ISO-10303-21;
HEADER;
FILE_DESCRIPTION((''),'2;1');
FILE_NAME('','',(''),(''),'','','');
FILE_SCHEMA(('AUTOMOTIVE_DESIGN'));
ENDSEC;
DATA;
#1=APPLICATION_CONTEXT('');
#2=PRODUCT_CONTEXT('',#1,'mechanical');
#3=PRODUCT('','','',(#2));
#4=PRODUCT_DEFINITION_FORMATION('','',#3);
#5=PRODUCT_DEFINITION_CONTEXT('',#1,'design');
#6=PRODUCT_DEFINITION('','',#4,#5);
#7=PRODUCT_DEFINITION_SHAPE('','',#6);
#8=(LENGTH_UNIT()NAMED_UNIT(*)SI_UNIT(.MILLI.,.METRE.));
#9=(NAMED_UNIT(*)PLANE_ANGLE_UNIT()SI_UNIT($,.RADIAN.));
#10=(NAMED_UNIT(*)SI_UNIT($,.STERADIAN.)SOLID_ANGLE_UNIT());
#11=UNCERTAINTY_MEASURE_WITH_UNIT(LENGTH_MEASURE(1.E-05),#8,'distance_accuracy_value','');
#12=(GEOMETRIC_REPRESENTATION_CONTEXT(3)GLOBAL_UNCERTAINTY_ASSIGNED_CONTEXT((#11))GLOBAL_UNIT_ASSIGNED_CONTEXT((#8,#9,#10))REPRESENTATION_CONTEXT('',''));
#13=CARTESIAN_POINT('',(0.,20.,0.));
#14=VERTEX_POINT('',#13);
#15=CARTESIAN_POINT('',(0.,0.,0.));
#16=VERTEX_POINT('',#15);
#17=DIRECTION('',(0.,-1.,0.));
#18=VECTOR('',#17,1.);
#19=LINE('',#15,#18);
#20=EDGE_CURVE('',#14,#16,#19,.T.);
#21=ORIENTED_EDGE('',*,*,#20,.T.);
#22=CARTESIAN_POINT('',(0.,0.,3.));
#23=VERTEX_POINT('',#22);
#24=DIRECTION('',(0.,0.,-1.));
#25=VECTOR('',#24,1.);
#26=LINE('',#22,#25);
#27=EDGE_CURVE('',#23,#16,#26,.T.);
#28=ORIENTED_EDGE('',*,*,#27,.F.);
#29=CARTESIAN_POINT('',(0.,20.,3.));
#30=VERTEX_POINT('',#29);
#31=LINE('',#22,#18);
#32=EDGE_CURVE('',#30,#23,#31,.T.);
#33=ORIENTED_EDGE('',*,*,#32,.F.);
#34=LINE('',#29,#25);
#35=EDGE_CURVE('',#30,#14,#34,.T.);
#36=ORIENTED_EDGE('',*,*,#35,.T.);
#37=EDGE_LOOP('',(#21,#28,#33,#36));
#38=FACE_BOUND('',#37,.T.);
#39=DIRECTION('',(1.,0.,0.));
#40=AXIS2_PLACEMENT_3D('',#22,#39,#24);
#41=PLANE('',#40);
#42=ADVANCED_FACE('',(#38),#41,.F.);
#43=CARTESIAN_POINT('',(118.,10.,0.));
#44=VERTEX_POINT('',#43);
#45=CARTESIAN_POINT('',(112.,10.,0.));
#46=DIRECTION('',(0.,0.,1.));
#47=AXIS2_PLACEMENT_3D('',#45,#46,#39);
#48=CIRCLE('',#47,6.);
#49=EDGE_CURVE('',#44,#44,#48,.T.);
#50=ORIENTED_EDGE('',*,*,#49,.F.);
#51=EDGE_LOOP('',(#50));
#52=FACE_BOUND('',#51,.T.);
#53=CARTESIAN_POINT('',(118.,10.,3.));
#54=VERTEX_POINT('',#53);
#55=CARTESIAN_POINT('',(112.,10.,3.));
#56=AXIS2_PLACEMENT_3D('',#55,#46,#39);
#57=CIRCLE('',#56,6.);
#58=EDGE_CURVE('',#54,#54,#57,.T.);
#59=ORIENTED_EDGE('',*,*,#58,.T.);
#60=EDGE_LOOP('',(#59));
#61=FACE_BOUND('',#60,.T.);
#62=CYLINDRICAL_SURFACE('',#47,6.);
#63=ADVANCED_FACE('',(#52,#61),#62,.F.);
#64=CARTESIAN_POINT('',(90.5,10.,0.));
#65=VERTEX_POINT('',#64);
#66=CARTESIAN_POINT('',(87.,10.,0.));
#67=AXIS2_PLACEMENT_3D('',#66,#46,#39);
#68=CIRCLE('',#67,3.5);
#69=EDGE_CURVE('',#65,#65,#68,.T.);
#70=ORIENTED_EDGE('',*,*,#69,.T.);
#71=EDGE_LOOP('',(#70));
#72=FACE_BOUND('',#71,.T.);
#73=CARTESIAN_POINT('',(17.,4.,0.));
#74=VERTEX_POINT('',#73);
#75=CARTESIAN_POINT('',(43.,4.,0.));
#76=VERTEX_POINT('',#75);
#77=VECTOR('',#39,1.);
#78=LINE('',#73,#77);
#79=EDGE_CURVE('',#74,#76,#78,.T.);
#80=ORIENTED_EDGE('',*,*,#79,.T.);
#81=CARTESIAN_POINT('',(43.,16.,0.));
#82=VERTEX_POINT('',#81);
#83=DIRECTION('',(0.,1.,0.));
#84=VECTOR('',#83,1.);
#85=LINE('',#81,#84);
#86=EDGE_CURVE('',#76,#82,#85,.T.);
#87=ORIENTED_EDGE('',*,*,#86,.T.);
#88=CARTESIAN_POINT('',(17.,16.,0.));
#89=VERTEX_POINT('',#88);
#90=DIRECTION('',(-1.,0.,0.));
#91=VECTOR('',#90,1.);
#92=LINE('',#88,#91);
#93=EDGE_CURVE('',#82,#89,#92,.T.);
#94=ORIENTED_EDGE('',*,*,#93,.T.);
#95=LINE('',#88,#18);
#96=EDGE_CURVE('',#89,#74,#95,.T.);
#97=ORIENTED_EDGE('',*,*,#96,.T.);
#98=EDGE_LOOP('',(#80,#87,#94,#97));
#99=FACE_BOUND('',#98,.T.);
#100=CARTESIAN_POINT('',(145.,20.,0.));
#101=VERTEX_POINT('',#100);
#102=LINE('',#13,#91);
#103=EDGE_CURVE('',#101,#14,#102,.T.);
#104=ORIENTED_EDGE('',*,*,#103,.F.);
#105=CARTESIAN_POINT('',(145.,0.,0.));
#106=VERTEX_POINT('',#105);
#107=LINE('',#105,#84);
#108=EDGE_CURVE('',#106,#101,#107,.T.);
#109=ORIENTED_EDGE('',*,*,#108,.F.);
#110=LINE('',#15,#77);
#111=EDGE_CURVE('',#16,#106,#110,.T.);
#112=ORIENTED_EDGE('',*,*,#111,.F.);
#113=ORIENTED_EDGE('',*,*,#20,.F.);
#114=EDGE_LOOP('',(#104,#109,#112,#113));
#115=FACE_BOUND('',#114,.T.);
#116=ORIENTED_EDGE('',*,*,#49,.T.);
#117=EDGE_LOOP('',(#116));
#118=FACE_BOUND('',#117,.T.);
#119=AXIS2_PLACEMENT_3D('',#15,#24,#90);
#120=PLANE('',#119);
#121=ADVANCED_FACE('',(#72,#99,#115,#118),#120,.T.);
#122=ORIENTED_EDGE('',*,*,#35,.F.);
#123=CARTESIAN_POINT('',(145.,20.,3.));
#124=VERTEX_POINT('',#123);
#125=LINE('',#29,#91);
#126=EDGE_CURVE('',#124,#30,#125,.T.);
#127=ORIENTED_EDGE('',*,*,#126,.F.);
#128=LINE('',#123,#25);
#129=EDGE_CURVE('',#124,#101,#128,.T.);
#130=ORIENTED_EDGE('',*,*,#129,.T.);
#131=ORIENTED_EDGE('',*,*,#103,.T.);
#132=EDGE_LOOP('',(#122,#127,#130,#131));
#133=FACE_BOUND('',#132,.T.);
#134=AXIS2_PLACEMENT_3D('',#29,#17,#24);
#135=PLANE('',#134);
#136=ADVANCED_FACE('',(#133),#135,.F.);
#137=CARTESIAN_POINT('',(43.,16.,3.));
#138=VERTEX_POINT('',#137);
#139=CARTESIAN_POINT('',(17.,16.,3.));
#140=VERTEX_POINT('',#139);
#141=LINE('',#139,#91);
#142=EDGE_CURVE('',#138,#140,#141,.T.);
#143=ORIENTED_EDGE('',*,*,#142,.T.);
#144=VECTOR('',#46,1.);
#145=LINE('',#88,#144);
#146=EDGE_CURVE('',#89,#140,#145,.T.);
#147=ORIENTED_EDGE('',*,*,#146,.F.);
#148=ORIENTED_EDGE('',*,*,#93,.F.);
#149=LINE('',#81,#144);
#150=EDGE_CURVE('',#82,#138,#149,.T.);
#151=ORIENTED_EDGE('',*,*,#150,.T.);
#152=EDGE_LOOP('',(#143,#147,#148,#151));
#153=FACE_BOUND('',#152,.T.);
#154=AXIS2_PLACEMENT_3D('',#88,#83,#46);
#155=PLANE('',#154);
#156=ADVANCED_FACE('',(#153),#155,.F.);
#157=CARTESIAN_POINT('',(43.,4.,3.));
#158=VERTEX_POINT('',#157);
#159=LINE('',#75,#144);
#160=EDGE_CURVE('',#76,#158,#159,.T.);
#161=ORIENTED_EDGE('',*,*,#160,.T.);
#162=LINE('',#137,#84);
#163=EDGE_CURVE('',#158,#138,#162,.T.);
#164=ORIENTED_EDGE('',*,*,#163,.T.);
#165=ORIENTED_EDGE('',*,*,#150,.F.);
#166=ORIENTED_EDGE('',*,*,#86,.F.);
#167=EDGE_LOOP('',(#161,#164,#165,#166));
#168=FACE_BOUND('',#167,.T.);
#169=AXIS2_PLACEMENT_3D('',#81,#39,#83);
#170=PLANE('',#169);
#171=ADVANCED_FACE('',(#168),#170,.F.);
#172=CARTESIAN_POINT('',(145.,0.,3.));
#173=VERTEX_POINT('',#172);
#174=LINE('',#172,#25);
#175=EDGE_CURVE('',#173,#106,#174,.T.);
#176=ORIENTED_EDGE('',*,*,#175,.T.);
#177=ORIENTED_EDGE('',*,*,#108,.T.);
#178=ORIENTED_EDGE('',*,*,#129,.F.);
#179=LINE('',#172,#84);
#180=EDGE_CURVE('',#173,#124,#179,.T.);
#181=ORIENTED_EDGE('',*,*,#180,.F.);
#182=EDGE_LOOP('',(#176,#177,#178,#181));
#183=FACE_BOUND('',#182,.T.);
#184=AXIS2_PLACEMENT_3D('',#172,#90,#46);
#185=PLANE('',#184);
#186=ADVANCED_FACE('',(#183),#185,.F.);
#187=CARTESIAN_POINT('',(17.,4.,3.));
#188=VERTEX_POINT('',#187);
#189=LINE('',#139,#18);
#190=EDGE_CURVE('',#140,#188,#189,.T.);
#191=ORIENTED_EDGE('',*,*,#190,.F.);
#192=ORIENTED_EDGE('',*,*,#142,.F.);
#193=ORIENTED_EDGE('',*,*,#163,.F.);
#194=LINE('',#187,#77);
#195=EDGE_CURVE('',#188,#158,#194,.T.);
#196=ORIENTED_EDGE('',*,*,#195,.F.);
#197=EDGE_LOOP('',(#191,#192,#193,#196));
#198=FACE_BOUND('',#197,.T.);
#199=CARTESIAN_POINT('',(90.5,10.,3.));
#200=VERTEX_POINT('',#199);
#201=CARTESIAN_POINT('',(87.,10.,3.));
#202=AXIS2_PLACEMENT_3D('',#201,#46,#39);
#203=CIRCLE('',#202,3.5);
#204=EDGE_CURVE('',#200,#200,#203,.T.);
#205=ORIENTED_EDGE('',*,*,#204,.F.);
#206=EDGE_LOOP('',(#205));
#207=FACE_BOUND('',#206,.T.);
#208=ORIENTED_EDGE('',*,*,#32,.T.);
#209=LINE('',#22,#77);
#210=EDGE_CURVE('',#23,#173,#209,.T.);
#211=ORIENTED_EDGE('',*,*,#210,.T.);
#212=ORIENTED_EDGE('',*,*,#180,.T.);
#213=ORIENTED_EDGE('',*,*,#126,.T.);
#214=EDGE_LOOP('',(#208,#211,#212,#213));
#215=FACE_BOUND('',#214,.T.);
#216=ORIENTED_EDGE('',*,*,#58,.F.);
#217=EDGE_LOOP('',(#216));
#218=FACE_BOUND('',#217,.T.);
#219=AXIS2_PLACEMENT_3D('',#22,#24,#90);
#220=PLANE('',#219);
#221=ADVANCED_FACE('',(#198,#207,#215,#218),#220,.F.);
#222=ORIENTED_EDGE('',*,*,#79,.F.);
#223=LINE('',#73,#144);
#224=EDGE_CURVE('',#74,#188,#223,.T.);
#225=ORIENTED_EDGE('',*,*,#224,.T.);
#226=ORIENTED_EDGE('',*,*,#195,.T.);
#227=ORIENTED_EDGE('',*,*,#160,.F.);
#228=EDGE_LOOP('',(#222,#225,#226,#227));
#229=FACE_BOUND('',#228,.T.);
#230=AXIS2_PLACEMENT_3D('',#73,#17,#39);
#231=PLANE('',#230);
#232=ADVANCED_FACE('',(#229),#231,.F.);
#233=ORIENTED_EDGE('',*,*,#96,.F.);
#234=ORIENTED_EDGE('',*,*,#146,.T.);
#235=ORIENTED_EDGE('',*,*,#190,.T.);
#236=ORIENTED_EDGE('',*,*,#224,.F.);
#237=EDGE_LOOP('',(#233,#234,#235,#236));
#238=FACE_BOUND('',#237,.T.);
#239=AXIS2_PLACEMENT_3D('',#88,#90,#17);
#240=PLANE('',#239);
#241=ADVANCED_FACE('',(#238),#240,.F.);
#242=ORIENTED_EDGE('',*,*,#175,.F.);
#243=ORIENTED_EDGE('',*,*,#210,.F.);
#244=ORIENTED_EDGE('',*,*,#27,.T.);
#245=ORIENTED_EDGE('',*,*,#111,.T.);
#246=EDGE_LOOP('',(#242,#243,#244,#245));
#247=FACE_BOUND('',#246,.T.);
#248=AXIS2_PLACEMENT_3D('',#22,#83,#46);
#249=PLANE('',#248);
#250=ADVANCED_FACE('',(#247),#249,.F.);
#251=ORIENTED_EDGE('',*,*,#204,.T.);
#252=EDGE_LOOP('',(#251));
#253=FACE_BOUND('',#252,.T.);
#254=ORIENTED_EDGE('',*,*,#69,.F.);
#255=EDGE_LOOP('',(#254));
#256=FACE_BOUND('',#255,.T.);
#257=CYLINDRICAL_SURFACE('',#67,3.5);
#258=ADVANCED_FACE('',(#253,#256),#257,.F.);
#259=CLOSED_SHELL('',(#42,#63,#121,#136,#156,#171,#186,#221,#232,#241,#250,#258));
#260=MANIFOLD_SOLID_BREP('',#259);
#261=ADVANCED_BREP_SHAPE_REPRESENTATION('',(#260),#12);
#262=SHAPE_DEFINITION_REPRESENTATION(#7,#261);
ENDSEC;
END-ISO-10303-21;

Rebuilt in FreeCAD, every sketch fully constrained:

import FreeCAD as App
import Part
import Sketcher
Q = App.Units.Quantity

doc = App.newDocument("Part")
body = doc.addObject("PartDesign::Body", "Body")

# Sketch on XY plane
sketch1 = body.newObject("Sketcher::SketchObject", "Sketch")
sketch1.AttachmentSupport = (doc.getObject("XY_Plane"), [""])
sketch1.MapMode = "FlatFace"
sketch1.addGeometry(Part.LineSegment(App.Vector(0, 20, 0), App.Vector(0, 0, 0)), False)
sketch1.addGeometry(Part.LineSegment(App.Vector(0, 0, 0), App.Vector(145, 0, 0)), False)
sketch1.addGeometry(Part.LineSegment(App.Vector(145, 0, 0), App.Vector(145, 20, 0)), False)
sketch1.addGeometry(Part.LineSegment(App.Vector(145, 20, 0), App.Vector(0, 20, 0)), False)
sketch1.addConstraint(Sketcher.Constraint("Coincident", 0, 2, 1, 1))
sketch1.addConstraint(Sketcher.Constraint("Coincident", 1, 2, 2, 1))
sketch1.addConstraint(Sketcher.Constraint("Coincident", 2, 2, 3, 1))
sketch1.addConstraint(Sketcher.Constraint("Coincident", 3, 2, 0, 1))
sketch1.addConstraint(Sketcher.Constraint("Vertical", 0))
sketch1.addConstraint(Sketcher.Constraint("Horizontal", 1))
sketch1.addConstraint(Sketcher.Constraint("Vertical", 2))
sketch1.addConstraint(Sketcher.Constraint("Horizontal", 3))
sketch1.addConstraint(Sketcher.Constraint("Coincident", 0, 2, -1, 1))
sketch1.addConstraint(Sketcher.Constraint("DistanceX", 1, 1, 1, 2, Q("145 mm")))
sketch1.addConstraint(Sketcher.Constraint("DistanceY", 0, 2, 0, 1, Q("20 mm")))
pad1 = body.newObject("PartDesign::Pad", "Pad")
pad1.Profile = sketch1
pad1.Length = 3

# Sketch on XY plane
sketch2 = body.newObject("Sketcher::SketchObject", "Sketch001")
sketch2.AttachmentSupport = (doc.getObject("XY_Plane"), [""])
sketch2.MapMode = "FlatFace"
sketch2.AttachmentOffset = App.Placement(App.Vector(0, 0, 3), App.Rotation())
sketch2.addGeometry(Part.Circle(App.Vector(87, 10, 0), App.Vector(0, 0, 1), 3.5), False)
sketch2.addGeometry(Part.Circle(App.Vector(112, 10, 0), App.Vector(0, 0, 1), 6), False)
sketch2.addGeometry(Part.LineSegment(App.Vector(17, 16, 0), App.Vector(17, 4, 0)), False)
sketch2.addGeometry(Part.LineSegment(App.Vector(17, 4, 0), App.Vector(43, 4, 0)), False)
sketch2.addGeometry(Part.LineSegment(App.Vector(43, 4, 0), App.Vector(43, 16, 0)), False)
sketch2.addGeometry(Part.LineSegment(App.Vector(43, 16, 0), App.Vector(17, 16, 0)), False)
sketch2.addConstraint(Sketcher.Constraint("Coincident", 2, 2, 3, 1))
sketch2.addConstraint(Sketcher.Constraint("Coincident", 3, 2, 4, 1))
sketch2.addConstraint(Sketcher.Constraint("Coincident", 4, 2, 5, 1))
sketch2.addConstraint(Sketcher.Constraint("Coincident", 5, 2, 2, 1))
sketch2.addConstraint(Sketcher.Constraint("Vertical", 2))
sketch2.addConstraint(Sketcher.Constraint("Horizontal", 3))
sketch2.addConstraint(Sketcher.Constraint("Vertical", 4))
sketch2.addConstraint(Sketcher.Constraint("Horizontal", 5))
sketch2.addConstraint(Sketcher.Constraint("Horizontal", 0, 3, 1, 3))
sketch2.addConstraint(Sketcher.Constraint("Diameter", 0, Q("7 mm")))
sketch2.addConstraint(Sketcher.Constraint("Diameter", 1, Q("12 mm")))
sketch2.addConstraint(Sketcher.Constraint("DistanceX", 3, 1, 3, 2, Q("26 mm")))
sketch2.addConstraint(Sketcher.Constraint("DistanceY", 2, 2, 2, 1, Q("12 mm")))
sketch2.addConstraint(Sketcher.Constraint("DistanceX", -1, 1, 0, 3, Q("87 mm")))
sketch2.addConstraint(Sketcher.Constraint("DistanceY", -1, 1, 0, 3, Q("10 mm")))
sketch2.addConstraint(Sketcher.Constraint("DistanceX", -1, 1, 1, 3, Q("112 mm")))
sketch2.addConstraint(Sketcher.Constraint("DistanceX", -1, 1, 2, 2, Q("17 mm")))
sketch2.addConstraint(Sketcher.Constraint("DistanceY", -1, 1, 2, 2, Q("4 mm")))
pocket1 = body.newObject("PartDesign::Pocket", "Pocket")
pocket1.Profile = sketch2
pocket1.Type = "ThroughAll"

doc.recompute()
